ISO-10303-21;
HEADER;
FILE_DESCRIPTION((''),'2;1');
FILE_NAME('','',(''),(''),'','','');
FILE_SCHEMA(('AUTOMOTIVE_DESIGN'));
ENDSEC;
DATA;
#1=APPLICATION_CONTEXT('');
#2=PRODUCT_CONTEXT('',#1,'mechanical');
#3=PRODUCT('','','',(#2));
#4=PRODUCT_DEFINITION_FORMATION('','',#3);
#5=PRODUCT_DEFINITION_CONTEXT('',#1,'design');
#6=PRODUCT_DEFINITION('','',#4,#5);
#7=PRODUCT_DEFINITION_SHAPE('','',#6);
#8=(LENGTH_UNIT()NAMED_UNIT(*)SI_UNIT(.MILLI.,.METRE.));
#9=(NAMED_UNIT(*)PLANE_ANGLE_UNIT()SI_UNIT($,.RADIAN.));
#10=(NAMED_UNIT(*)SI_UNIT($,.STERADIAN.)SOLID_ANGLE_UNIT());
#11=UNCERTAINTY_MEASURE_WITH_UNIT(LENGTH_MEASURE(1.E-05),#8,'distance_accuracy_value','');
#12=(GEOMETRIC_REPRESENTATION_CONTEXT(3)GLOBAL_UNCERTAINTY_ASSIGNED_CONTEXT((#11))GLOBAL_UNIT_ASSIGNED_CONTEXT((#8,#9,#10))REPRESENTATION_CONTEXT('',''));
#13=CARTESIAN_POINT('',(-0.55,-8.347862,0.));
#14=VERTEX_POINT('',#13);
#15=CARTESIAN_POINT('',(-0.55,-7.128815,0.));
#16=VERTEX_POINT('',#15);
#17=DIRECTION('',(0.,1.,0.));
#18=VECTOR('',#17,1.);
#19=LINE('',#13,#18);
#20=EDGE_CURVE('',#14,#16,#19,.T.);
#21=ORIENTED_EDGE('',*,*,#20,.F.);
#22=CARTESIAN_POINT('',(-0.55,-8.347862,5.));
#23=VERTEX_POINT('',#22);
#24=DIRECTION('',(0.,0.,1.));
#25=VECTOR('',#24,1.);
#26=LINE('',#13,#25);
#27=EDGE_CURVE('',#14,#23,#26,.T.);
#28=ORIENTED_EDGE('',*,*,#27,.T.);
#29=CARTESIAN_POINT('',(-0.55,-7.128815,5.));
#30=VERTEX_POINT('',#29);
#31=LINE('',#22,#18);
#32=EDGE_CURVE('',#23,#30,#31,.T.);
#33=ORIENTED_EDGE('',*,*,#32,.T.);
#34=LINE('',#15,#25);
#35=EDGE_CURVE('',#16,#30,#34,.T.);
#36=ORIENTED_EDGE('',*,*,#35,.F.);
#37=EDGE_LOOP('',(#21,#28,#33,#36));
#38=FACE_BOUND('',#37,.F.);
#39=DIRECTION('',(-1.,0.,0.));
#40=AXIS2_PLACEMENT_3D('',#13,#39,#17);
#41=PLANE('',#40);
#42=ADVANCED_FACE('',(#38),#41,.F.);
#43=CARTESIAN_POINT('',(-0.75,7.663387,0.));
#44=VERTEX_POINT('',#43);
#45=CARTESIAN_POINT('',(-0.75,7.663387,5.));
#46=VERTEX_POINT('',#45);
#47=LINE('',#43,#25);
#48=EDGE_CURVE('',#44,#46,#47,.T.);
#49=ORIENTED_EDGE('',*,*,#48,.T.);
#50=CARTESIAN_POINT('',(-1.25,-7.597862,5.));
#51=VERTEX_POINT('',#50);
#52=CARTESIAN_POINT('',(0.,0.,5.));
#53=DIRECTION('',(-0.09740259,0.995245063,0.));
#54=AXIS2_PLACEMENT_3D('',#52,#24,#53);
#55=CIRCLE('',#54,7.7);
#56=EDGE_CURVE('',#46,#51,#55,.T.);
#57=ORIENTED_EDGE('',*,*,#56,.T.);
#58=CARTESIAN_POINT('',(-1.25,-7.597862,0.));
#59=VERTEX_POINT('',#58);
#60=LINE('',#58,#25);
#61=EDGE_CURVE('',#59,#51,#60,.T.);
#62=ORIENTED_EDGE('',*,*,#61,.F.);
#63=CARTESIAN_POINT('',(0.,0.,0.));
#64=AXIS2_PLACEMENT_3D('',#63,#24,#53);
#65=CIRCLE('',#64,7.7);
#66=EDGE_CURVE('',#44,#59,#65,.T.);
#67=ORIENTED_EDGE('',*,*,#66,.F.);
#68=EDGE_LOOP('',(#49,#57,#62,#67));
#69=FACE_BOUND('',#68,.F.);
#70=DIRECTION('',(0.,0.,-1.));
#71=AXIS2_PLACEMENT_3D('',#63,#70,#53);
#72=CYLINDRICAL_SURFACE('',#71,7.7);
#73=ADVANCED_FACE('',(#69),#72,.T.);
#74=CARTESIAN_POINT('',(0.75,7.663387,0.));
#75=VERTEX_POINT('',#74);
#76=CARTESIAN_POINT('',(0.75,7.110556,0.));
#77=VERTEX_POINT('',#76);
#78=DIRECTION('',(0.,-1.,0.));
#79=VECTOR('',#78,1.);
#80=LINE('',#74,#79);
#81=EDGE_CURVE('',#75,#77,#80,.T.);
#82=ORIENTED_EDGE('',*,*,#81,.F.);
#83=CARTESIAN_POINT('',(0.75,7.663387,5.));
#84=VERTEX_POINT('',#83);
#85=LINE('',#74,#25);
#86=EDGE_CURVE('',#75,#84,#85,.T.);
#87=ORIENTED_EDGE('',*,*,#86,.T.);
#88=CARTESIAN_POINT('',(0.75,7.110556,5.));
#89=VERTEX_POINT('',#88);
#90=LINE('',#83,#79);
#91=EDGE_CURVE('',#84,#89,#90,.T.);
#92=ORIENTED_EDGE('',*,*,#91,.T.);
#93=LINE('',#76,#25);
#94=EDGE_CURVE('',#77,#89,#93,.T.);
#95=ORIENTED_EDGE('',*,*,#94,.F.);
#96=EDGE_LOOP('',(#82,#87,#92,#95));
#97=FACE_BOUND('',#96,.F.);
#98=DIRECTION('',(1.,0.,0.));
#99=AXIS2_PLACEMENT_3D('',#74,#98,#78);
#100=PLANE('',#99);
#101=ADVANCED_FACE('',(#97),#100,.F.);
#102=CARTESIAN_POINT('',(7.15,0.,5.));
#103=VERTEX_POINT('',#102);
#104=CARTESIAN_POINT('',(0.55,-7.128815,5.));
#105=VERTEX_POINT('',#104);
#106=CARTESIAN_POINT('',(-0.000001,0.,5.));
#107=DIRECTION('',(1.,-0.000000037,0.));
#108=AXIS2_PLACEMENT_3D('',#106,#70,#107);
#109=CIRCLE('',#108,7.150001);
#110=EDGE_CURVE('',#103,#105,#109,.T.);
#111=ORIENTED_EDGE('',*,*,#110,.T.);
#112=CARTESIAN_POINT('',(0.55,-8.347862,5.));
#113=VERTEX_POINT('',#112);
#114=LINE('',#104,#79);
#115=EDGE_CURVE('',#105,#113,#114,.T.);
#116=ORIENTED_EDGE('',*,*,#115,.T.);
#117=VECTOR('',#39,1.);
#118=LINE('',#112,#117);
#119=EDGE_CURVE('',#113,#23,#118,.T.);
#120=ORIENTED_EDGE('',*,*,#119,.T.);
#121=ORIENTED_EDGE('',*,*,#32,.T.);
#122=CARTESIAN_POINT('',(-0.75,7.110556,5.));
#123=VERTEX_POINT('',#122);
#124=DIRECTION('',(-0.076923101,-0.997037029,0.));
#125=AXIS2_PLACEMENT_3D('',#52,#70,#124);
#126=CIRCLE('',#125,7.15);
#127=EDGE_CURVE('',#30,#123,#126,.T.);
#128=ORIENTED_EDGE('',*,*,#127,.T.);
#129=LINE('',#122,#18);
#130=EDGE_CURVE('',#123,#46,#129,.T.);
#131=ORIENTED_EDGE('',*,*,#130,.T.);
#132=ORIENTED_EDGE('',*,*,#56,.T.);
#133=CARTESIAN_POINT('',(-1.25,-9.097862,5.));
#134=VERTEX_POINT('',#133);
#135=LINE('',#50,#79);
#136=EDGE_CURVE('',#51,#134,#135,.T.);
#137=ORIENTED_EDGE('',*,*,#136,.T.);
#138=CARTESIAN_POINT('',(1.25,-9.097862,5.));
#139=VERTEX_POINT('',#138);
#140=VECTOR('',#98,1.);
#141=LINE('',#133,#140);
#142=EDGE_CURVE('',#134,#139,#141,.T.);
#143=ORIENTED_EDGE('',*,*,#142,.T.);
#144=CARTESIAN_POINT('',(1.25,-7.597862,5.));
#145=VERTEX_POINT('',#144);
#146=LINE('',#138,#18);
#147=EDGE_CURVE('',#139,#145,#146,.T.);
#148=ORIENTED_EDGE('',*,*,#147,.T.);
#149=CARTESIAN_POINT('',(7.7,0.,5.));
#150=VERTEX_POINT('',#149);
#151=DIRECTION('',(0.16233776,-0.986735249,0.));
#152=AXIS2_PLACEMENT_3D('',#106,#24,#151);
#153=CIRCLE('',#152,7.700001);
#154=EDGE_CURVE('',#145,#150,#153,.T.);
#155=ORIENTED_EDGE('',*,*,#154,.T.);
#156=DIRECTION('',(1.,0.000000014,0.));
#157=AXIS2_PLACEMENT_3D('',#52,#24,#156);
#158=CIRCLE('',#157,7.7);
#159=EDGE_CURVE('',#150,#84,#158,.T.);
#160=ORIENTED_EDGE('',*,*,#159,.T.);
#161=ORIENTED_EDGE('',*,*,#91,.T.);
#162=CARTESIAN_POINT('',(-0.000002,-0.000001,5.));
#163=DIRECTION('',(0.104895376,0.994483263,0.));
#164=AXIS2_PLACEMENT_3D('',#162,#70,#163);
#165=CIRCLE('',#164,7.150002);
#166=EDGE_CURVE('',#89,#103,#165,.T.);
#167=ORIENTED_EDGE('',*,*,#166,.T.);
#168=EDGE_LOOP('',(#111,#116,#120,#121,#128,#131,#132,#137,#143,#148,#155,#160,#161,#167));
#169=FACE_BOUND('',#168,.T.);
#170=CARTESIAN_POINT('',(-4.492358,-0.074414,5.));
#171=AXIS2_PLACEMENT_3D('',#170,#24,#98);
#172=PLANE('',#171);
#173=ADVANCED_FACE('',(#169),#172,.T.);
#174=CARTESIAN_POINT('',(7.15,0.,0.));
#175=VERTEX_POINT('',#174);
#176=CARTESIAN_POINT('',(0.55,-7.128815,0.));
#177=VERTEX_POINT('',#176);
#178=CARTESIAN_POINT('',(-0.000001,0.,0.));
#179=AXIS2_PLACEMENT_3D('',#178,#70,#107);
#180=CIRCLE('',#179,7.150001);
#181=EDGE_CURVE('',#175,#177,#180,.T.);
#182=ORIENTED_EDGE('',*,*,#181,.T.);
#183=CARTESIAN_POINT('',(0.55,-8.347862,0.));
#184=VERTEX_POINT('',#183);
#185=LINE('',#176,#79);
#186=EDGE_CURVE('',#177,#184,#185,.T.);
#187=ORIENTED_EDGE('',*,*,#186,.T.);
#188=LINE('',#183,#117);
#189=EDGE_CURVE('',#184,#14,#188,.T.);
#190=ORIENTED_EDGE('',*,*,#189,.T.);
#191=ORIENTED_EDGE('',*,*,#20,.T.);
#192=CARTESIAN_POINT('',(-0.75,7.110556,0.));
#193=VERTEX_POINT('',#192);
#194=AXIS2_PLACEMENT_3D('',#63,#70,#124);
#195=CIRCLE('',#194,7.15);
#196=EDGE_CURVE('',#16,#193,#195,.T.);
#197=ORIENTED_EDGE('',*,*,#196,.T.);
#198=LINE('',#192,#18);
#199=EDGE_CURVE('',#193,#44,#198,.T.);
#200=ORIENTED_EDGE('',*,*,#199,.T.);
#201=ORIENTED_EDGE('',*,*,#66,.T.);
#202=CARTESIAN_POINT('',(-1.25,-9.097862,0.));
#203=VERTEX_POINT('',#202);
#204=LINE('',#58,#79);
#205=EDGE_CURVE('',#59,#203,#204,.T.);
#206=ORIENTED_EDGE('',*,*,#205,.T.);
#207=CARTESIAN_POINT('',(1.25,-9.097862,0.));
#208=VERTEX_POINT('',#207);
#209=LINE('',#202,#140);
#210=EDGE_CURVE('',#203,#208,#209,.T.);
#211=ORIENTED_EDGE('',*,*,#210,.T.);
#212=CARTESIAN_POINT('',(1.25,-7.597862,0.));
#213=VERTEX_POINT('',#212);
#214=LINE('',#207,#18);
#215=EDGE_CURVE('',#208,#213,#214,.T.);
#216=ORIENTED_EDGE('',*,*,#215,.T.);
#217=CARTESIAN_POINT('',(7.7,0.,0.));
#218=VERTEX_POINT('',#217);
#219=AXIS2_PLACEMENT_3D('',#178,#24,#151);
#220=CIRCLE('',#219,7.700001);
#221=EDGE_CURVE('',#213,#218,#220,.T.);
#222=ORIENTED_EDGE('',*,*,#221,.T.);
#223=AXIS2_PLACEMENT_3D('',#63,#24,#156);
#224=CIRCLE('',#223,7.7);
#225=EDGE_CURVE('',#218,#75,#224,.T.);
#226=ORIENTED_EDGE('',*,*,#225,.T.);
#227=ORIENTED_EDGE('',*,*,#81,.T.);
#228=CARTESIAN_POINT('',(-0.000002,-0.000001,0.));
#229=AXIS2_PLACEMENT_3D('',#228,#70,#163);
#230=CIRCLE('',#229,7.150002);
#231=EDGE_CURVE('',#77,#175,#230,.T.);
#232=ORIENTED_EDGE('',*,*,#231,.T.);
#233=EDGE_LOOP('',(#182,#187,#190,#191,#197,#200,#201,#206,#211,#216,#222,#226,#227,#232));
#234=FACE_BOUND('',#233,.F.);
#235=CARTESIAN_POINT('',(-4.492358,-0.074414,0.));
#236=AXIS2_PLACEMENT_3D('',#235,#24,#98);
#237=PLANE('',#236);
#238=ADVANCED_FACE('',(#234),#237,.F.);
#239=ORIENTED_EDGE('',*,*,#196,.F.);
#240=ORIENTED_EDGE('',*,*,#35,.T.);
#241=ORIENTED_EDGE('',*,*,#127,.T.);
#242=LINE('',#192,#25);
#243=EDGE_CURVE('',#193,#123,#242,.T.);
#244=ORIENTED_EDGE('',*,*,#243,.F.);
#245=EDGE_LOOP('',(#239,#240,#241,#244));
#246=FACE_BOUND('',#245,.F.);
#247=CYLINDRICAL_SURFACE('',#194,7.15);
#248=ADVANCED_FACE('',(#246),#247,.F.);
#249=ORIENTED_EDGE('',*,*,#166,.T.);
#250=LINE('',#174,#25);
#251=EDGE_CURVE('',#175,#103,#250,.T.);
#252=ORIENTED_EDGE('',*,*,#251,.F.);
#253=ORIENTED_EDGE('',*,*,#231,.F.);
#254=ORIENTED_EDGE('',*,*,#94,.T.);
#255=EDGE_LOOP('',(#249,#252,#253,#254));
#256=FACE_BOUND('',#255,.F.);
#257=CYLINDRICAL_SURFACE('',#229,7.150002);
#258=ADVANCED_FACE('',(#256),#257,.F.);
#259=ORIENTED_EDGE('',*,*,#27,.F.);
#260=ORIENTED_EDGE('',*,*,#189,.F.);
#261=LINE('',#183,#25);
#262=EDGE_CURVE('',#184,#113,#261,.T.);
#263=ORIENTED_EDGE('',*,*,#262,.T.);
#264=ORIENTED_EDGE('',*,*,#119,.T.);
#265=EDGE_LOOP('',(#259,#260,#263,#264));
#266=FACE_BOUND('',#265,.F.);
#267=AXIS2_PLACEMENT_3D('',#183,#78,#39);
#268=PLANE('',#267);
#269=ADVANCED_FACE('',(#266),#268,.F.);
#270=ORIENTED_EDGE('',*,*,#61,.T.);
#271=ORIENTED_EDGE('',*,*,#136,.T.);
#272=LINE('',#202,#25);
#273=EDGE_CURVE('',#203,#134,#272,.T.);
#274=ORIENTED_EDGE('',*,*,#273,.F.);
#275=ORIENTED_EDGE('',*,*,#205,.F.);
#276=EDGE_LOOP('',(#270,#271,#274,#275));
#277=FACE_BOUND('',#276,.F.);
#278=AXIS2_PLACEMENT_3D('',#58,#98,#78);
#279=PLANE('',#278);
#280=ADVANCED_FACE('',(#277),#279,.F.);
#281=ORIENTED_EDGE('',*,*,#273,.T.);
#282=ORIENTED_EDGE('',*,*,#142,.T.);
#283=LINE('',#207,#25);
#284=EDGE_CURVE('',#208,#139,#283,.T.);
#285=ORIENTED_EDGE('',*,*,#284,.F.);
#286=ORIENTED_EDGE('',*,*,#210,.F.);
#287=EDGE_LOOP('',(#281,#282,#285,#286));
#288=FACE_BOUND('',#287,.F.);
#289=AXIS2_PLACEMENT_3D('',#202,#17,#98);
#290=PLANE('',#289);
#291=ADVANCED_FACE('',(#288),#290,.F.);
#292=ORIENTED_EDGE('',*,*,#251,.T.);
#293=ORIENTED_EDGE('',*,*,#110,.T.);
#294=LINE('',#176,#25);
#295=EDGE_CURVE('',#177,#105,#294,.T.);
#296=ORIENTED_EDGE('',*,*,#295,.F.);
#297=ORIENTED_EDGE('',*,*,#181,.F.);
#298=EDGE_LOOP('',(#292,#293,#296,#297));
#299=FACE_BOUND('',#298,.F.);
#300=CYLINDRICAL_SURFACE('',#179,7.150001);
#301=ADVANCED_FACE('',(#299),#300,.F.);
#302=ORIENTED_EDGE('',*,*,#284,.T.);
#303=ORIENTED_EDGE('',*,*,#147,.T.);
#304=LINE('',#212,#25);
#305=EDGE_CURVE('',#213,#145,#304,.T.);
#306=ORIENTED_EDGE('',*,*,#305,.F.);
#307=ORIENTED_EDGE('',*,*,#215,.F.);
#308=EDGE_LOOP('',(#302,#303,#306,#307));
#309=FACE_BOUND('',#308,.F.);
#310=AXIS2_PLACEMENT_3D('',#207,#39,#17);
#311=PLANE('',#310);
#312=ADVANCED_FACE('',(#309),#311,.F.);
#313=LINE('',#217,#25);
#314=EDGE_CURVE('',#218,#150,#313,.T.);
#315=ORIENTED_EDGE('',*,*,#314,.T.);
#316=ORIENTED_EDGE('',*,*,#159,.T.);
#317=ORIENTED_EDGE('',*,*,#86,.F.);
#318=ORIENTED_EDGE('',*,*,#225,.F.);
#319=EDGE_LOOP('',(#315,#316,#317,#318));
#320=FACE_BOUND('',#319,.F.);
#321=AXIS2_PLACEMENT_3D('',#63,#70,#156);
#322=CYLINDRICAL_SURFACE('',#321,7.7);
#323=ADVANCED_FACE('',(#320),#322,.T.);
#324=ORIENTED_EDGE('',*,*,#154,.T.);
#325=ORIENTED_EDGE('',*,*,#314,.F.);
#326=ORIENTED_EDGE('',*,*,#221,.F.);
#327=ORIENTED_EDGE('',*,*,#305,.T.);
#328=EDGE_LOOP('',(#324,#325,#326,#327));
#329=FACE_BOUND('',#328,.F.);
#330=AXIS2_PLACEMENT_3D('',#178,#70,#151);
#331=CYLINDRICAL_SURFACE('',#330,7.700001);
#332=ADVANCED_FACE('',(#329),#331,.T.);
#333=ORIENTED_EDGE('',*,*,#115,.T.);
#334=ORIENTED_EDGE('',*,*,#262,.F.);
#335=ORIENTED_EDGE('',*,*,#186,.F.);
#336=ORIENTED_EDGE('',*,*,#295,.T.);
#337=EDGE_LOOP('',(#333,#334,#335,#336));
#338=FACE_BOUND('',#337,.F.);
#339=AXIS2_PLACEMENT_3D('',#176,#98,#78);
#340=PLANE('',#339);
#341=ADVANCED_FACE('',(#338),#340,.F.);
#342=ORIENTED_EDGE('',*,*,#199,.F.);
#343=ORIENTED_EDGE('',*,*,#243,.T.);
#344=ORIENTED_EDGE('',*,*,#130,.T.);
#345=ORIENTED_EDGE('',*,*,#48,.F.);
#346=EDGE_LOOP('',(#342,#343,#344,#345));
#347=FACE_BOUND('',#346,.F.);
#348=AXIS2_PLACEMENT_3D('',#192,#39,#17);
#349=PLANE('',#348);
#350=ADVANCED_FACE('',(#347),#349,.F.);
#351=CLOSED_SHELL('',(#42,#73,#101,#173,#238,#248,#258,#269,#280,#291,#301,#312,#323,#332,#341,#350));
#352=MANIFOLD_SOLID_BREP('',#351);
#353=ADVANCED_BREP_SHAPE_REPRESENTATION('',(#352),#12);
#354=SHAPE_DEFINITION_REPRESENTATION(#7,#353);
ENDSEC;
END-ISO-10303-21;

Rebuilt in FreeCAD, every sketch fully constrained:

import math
import FreeCAD as App
import Part
import Sketcher

doc = App.newDocument("Part")
body = doc.addObject("PartDesign::Body", "Body")

# Sketch on XY plane
sketch1 = doc.addObject("Sketcher::SketchObject", "Sketch")
body.addObject(sketch1)
sketch1.AttachmentSupport = (doc.XY_Plane, [""])
sketch1.MapMode = "FlatFace"
sketch1.addGeometry(Part.ArcOfCircle(Part.Circle(App.Vector(0, 0, 0), App.Vector(0, 0, 1), 7.2), math.radians(96), math.radians(266)), False)
sketch1.addGeometry(Part.LineSegment(App.Vector(-0.8, 7.1, 0), App.Vector(-0.8, 7.7, 0)), False)
sketch1.addGeometry(Part.ArcOfCircle(Part.Circle(App.Vector(0, 0, 0), App.Vector(0, 0, 1), 7.7), math.radians(96), math.radians(261)), False)
sketch1.addGeometry(Part.LineSegment(App.Vector(-1.2, -7.6, 0), App.Vector(-1.2, -9.1, 0)), False)
sketch1.addGeometry(Part.LineSegment(App.Vector(-1.2, -9.1, 0), App.Vector(1.2, -9.1, 0)), False)
sketch1.addGeometry(Part.LineSegment(App.Vector(1.2, -9.1, 0), App.Vector(1.2, -7.6, 0)), False)
sketch1.addGeometry(Part.ArcOfCircle(Part.Circle(App.Vector(0, 0, 0), App.Vector(0, 0, 1), 7.7), math.radians(-81), math.radians(0)), False)
sketch1.addGeometry(Part.ArcOfCircle(Part.Circle(App.Vector(0, 0, 0), App.Vector(0, 0, 1), 7.7), math.radians(0), math.radians(84)), False)
sketch1.addGeometry(Part.LineSegment(App.Vector(0.8, 7.7, 0), App.Vector(0.8, 7.1, 0)), False)
sketch1.addGeometry(Part.ArcOfCircle(Part.Circle(App.Vector(0, 0, 0), App.Vector(0, 0, 1), 7.2), math.radians(0), math.radians(84)), False)
sketch1.addGeometry(Part.ArcOfCircle(Part.Circle(App.Vector(0, 0, 0), App.Vector(0, 0, 1), 7.2), math.radians(-86), math.radians(0)), False)
sketch1.addGeometry(Part.LineSegment(App.Vector(0.6, -7.1, 0), App.Vector(0.6, -8.3, 0)), False)
sketch1.addGeometry(Part.LineSegment(App.Vector(0.6, -8.3, 0), App.Vector(-0.6, -8.3, 0)), False)
sketch1.addGeometry(Part.LineSegment(App.Vector(-0.6, -8.3, 0), App.Vector(-0.6, -7.1, 0)), False)
sketch1.addConstraint(Sketcher.Constraint("Coincident", 0, 1, 1, 1))
sketch1.addConstraint(Sketcher.Constraint("Coincident", 1, 2, 2, 1))
sketch1.addConstraint(Sketcher.Constraint("Coincident", 2, 2, 3, 1))
sketch1.addConstraint(Sketcher.Constraint("Coincident", 3, 2, 4, 1))
sketch1.addConstraint(Sketcher.Constraint("Coincident", 4, 2, 5, 1))
sketch1.addConstraint(Sketcher.Constraint("Coincident", 5, 2, 6, 1))
sketch1.addConstraint(Sketcher.Constraint("Tangent", 6, 2, 7, 1))
sketch1.addConstraint(Sketcher.Constraint("Coincident", 7, 2, 8, 1))
sketch1.addConstraint(Sketcher.Constraint("Coincident", 8, 2, 9, 2))
sketch1.addConstraint(Sketcher.Constraint("Tangent", 9, 1, 10, 2))
sketch1.addConstraint(Sketcher.Constraint("Coincident", 10, 1, 11, 1))
sketch1.addConstraint(Sketcher.Constraint("Coincident", 11, 2, 12, 1))
sketch1.addConstraint(Sketcher.Constraint("Coincident", 12, 2, 13, 1))
sketch1.addConstraint(Sketcher.Constraint("Coincident", 13, 2, 0, 2))
sketch1.addConstraint(Sketcher.Constraint("Vertical", 1))
sketch1.addConstraint(Sketcher.Constraint("Vertical", 3))
sketch1.addConstraint(Sketcher.Constraint("Horizontal", 4))
sketch1.addConstraint(Sketcher.Constraint("Vertical", 5))
sketch1.addConstraint(Sketcher.Constraint("Vertical", 8))
sketch1.addConstraint(Sketcher.Constraint("Vertical", 11))
sketch1.addConstraint(Sketcher.Constraint("Horizontal", 12))
sketch1.addConstraint(Sketcher.Constraint("Vertical", 13))
sketch1.addConstraint(Sketcher.Constraint("Coincident", 0, 3, -1, 1))
sketch1.addConstraint(Sketcher.Constraint("Coincident", 2, 3, -1, 1))
sketch1.addConstraint(Sketcher.Constraint("Coincident", 6, 3, -1, 1))
sketch1.addConstraint(Sketcher.Constraint("Coincident", 9, 3, -1, 1))
sketch1.addConstraint(Sketcher.Constraint("Equal", 2, 6))
sketch1.addConstraint(Sketcher.Constraint("Equal", 6, 7))
sketch1.addConstraint(Sketcher.Constraint("Equal", 0, 9))
sketch1.addConstraint(Sketcher.Constraint("Equal", 9, 10))
sketch1.addConstraint(Sketcher.Constraint("PointOnObject", 6, 2, -1))
sketch1.addConstraint(Sketcher.Constraint("PointOnObject", 9, 1, -1))
sketch1.addConstraint(Sketcher.Constraint("Horizontal", 2, 2, 5, 2))
sketch1.addConstraint(Sketcher.Constraint("Horizontal", 1, 2, 7, 2))
sketch1.addConstraint(Sketcher.Constraint("Horizontal", 10, 1, 13, 2))
sketch1.addConstraint(Sketcher.Constraint("Radius", 2, 7.7))
sketch1.addConstraint(Sketcher.Constraint("Radius", 0, 7.15))
sketch1.addConstraint(Sketcher.Constraint("DistanceX", 4, 1, 4, 2, 2.5))
sketch1.addConstraint(Sketcher.Constraint("DistanceX", 12, 2, 12, 1, 1.1))
sketch1.addConstraint(Sketcher.Constraint("DistanceY", 3, 2, 3, 1, 1.5))
sketch1.addConstraint(Sketcher.Constraint("DistanceX", 1, 2, 7, 2, 1.5))
sketch1.addConstraint(Sketcher.Constraint("DistanceY", 11, 2, 5, 2, 0.75))
pad1 = doc.addObject("PartDesign::Pad", "Pad")
body.addObject(pad1)
pad1.Profile = sketch1
pad1.Length = 5

doc.recompute()
